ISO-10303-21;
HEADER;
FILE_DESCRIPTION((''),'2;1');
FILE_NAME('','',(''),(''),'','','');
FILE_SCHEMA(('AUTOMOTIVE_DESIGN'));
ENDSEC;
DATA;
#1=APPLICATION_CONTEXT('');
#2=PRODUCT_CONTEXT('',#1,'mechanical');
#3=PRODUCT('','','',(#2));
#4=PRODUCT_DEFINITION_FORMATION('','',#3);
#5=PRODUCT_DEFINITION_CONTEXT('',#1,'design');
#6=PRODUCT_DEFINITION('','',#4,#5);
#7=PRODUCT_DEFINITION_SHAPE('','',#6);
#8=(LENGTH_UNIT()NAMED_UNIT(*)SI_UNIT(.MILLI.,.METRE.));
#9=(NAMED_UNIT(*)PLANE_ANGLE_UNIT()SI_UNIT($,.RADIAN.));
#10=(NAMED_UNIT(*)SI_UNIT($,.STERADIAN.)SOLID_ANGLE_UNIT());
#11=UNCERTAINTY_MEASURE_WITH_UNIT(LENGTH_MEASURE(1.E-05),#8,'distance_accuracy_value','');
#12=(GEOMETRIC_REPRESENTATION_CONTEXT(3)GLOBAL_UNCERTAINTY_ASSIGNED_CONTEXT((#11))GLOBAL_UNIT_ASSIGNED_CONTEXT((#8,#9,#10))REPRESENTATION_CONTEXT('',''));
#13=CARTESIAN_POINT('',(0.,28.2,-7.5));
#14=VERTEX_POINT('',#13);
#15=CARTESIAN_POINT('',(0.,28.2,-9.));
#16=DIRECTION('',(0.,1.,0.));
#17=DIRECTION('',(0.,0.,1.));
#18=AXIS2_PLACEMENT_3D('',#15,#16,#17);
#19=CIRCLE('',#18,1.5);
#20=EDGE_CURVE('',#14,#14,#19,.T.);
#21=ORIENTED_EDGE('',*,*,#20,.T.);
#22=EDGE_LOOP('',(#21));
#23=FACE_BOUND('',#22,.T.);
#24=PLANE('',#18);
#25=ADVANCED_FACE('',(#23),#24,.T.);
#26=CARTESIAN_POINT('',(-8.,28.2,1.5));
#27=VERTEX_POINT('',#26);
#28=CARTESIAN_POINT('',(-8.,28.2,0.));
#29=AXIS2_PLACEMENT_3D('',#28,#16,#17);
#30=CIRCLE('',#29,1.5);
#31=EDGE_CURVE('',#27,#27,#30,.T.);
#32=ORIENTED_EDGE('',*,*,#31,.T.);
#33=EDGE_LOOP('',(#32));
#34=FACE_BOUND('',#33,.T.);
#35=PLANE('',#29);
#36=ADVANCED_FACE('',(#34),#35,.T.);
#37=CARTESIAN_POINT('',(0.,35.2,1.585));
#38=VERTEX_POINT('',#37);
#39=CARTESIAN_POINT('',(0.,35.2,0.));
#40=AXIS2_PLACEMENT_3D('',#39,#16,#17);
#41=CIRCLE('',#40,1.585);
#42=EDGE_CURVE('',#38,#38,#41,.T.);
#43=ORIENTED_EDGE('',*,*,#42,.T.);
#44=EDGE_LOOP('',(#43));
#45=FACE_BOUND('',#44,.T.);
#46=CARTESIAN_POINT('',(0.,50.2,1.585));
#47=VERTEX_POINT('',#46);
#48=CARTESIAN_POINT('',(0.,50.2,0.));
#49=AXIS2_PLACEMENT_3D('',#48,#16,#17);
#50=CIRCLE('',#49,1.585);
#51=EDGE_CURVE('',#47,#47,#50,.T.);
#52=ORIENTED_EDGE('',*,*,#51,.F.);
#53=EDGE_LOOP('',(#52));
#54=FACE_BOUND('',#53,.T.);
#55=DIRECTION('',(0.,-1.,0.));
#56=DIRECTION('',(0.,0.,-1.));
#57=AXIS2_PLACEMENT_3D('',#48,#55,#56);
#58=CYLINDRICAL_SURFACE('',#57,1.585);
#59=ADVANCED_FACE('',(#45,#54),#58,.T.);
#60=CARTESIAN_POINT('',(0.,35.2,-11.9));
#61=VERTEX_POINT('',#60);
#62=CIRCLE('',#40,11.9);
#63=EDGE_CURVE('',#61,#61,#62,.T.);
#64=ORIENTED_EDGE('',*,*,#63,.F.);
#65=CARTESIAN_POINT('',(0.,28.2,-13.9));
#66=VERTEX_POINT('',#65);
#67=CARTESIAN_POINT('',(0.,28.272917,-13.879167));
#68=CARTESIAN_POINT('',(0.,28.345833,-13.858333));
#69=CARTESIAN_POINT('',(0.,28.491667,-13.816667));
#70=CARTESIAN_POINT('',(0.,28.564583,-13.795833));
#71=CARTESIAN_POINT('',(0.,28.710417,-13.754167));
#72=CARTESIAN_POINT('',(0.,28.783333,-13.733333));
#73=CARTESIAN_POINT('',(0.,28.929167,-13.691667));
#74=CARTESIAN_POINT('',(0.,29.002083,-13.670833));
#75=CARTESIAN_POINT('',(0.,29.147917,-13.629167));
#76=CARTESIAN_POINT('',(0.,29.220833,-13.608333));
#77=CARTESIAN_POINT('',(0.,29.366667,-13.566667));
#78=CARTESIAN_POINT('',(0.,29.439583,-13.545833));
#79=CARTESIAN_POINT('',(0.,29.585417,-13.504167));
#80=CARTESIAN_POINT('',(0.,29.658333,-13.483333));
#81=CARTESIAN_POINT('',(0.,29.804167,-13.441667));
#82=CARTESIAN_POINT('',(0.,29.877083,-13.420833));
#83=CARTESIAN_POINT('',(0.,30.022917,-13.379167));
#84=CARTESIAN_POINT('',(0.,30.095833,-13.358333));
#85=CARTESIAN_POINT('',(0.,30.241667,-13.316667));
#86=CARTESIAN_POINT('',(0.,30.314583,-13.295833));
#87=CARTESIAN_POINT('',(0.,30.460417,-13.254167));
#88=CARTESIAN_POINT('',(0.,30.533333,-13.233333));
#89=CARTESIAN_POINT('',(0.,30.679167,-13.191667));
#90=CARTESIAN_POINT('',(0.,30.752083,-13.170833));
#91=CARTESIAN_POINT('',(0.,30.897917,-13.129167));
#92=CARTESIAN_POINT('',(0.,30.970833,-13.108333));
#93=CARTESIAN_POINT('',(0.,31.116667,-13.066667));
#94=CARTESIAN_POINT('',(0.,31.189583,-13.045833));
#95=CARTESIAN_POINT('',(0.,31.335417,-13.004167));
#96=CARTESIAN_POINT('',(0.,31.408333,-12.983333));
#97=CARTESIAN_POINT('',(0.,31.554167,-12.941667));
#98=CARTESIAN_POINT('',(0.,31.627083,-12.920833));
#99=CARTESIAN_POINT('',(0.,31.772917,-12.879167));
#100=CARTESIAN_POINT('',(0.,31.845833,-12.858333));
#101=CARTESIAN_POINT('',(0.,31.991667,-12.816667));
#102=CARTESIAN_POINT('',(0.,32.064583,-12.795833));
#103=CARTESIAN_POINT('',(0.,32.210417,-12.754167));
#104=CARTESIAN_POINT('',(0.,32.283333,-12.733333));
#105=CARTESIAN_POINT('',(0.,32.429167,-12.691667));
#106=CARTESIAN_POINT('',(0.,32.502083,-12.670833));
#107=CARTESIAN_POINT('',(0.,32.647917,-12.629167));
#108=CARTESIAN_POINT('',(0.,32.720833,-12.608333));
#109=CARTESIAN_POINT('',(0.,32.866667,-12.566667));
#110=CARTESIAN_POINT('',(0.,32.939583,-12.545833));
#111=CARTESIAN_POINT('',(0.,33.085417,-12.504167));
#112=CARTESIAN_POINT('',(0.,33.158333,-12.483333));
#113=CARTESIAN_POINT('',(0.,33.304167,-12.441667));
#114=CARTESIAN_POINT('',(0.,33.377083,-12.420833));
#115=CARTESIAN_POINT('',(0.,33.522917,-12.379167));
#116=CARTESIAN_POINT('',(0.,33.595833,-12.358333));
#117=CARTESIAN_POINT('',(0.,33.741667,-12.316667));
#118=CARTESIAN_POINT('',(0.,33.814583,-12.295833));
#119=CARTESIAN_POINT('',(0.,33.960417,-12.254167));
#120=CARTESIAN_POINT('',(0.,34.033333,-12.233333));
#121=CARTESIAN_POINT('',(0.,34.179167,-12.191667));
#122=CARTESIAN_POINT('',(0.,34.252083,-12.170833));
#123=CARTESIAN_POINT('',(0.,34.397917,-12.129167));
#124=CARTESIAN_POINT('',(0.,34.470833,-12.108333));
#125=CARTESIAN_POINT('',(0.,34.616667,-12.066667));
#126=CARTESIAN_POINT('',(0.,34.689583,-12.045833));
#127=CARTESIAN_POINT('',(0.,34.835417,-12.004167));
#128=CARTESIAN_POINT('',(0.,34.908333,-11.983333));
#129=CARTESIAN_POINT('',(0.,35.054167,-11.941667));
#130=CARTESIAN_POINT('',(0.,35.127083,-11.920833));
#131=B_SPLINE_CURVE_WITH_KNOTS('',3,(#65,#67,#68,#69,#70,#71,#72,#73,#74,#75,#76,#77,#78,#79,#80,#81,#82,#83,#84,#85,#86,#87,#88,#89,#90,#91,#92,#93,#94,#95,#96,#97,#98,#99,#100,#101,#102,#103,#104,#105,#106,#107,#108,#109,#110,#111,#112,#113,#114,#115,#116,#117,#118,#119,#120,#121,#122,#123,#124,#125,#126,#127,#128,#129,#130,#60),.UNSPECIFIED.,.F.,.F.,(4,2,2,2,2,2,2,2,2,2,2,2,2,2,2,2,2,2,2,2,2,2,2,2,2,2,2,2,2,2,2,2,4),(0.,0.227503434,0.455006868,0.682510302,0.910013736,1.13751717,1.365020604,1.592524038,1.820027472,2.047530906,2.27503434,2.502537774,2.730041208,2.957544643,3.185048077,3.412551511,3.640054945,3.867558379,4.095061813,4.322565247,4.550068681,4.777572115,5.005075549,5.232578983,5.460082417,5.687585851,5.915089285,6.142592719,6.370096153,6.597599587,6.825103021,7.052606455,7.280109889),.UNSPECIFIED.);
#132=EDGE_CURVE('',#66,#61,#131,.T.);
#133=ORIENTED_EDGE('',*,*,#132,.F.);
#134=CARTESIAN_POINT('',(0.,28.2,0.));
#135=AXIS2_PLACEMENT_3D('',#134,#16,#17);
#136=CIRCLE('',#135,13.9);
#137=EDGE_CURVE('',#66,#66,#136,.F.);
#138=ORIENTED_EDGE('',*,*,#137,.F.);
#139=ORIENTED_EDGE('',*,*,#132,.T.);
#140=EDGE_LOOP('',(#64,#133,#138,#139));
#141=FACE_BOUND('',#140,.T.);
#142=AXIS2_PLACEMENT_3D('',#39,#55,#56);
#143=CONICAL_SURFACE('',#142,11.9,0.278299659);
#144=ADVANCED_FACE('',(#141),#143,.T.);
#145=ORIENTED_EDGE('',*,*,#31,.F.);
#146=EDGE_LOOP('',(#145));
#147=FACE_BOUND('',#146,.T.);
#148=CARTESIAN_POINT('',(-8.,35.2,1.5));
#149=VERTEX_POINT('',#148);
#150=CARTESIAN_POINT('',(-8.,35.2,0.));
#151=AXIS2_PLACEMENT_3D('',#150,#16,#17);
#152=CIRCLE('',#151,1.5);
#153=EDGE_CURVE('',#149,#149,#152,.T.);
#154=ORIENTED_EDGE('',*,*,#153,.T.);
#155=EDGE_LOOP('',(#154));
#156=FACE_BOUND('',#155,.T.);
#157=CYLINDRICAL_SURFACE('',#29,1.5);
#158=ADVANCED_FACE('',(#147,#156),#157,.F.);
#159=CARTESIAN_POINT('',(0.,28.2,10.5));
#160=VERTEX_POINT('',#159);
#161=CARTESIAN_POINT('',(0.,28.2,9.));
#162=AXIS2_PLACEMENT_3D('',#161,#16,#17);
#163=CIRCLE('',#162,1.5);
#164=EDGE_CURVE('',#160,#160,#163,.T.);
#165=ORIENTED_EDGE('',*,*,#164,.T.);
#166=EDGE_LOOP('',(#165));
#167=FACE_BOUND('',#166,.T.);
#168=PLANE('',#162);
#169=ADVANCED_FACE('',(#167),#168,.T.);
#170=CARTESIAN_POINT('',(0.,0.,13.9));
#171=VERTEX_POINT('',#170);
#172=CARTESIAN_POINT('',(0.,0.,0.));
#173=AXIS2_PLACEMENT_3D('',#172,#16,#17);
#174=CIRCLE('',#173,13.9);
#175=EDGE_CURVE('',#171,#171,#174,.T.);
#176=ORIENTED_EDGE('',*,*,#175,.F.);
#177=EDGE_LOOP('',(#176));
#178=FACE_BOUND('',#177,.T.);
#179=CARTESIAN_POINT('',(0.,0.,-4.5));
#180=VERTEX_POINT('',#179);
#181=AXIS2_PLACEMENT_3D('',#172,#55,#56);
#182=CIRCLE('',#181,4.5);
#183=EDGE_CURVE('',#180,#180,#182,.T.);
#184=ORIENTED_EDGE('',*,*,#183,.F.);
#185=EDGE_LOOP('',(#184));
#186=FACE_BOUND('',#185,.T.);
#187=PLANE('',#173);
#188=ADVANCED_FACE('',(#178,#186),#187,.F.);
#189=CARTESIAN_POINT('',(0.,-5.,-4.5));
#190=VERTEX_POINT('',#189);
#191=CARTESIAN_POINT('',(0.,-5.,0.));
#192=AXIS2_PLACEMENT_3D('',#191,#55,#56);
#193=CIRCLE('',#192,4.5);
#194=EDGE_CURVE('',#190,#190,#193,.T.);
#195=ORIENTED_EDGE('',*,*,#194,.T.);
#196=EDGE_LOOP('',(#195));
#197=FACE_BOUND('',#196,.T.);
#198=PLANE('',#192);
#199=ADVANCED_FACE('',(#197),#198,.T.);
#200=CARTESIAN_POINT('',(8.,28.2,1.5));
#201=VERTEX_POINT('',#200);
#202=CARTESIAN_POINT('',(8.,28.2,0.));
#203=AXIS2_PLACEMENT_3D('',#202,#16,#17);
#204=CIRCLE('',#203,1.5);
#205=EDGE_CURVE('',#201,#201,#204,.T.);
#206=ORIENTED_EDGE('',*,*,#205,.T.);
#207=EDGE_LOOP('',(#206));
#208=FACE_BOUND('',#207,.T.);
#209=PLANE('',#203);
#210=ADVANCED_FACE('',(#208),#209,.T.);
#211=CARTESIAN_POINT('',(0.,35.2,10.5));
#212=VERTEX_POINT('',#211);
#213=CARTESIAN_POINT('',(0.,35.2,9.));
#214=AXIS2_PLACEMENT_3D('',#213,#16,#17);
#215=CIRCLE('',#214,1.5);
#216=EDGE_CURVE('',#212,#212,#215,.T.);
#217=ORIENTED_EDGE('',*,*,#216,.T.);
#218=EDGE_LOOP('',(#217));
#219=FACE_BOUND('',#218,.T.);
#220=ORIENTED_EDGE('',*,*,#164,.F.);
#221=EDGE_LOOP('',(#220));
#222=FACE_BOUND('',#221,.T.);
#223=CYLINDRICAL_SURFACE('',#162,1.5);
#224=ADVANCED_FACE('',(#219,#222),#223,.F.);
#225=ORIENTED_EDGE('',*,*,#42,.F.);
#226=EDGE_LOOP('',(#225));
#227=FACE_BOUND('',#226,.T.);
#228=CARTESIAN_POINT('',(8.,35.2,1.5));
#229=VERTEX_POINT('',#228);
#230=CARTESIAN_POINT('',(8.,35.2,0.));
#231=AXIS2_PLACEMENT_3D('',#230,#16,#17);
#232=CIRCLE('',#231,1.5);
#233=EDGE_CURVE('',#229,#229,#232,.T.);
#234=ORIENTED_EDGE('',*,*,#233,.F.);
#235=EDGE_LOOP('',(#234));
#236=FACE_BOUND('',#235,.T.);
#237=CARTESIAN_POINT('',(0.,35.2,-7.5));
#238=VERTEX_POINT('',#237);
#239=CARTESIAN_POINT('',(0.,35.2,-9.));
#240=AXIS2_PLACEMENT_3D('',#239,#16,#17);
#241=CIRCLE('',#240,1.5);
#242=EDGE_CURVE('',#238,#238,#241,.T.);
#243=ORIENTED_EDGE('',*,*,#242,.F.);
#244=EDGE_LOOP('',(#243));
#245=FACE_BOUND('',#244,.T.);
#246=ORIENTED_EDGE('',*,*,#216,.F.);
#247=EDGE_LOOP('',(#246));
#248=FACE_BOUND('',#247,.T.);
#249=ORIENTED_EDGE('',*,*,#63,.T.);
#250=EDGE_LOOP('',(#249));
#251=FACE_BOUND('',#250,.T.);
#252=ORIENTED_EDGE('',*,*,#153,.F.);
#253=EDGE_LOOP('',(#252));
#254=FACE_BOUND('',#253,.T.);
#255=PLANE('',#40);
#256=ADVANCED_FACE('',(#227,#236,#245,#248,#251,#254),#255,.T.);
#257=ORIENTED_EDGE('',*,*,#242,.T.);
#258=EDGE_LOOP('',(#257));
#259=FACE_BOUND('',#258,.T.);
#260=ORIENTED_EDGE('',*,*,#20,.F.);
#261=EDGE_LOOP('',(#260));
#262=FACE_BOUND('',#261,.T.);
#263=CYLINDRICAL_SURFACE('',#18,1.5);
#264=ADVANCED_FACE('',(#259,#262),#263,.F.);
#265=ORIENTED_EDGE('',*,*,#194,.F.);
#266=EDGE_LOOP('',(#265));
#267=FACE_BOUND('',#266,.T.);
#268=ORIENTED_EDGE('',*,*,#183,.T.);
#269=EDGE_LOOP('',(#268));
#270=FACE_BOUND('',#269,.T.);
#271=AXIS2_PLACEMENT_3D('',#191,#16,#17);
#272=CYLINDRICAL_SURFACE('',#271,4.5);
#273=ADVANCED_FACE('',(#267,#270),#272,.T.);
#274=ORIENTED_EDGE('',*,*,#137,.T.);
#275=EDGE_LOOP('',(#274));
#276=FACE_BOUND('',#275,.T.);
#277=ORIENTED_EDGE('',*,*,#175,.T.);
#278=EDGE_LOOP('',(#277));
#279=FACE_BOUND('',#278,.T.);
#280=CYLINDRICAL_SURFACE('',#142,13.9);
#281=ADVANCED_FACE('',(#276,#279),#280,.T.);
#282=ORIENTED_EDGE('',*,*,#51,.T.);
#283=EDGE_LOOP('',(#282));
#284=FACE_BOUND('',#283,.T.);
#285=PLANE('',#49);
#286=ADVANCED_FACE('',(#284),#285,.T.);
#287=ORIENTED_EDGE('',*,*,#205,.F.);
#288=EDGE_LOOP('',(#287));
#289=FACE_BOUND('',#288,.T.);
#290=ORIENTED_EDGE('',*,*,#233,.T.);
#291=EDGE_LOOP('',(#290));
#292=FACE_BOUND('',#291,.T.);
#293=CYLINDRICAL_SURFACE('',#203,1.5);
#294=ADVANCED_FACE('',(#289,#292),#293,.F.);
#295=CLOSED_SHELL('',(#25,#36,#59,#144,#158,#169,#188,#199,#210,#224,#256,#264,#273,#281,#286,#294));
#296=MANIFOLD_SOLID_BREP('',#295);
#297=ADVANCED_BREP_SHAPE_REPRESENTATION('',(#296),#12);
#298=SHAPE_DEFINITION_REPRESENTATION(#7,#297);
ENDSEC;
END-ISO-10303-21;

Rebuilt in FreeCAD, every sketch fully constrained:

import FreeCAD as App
import Part
import Sketcher

V = App.Vector
Q = App.Units.Quantity


def edges_at(feature, points):
    """Names of the edges that pass closest to the given points."""
    edges = feature.Shape.Edges
    near = lambda p: min(range(len(edges)), key=lambda i: edges[i].distToShape(Part.Vertex(*p))[0])
    return sorted({f"Edge{near(p) + 1}" for p in points})

doc = App.newDocument("Part")
params = doc.addObject("Spreadsheet::Sheet", "Params")
for row, (alias, value) in enumerate([
    ("sketch1_diameter", "27.8 mm"),
    ("pad1_length", "35.2 mm"),
    ("sketch2_diameter", "3.17 mm"),
    ("pad2_length", "15 mm"),
    ("sketch3_diameter", "3 mm"),
    ("pocket1_length", "7 mm"),
    ("chamfer_size", "7 mm"),
    ("chamfer_size2", "2 mm"),
    ("sketch4_diameter", "9 mm"),
    ("pad3_length", "5 mm"),
], start=1):
    params.set(f"A{row}", alias)
    params.set(f"B{row}", "=" + value)
    params.setAlias(f"B{row}", alias)

body = doc.addObject("PartDesign::Body", "Body")

sketch1 = body.newObject("Sketcher::SketchObject", "Sketch")
sketch1.AttachmentSupport = (doc.getObject("XZ_Plane"), [""])
sketch1.MapMode = "FlatFace"
sketch1.addGeometry(Part.Circle(V(0, 0, 0), V(0, 0, 1), 14), False)
sketch1.addConstraint([
    Sketcher.Constraint("Coincident", 0, 3, -1, 1),
    Sketcher.Constraint("Diameter", 0, Q("27.8 mm")),
])
sketch1.setExpression("Constraints[1]", "Params.sketch1_diameter")
pad1 = body.newObject("PartDesign::Pad", "Pad")
pad1.Profile = sketch1
pad1.setExpression("Length", "Params.pad1_length")
pad1.Reversed = True

sketch2 = body.newObject("Sketcher::SketchObject", "Sketch001")
sketch2.AttachmentSupport = (doc.getObject("XZ_Plane"), [""])
sketch2.MapMode = "FlatFace"
sketch2.AttachmentOffset = App.Placement(V(0, 0, -35.2), App.Rotation())
sketch2.addGeometry(Part.Circle(V(0, 0, 0), V(0, 0, 1), 1.6), False)
sketch2.addConstraint([
    Sketcher.Constraint("Coincident", 0, 3, -1, 1),
    Sketcher.Constraint("Diameter", 0, Q("3.17 mm")),
])
sketch2.setExpression("Constraints[1]", "Params.sketch2_diameter")
pad2 = body.newObject("PartDesign::Pad", "Pad001")
pad2.Profile = sketch2
pad2.setExpression("Length", "Params.pad2_length")
pad2.Reversed = True

sketch3 = body.newObject("Sketcher::SketchObject", "Sketch002")
sketch3.AttachmentSupport = (doc.getObject("XZ_Plane"), [""])
sketch3.MapMode = "FlatFace"
sketch3.AttachmentOffset = App.Placement(V(0, 0, -35.2), App.Rotation())
sketch3.addGeometry([
    Part.Circle(V(0, -9, 0), V(0, 0, 1), 1.5),
    Part.Circle(V(-8, 0, 0), V(0, 0, 1), 1.5),
    Part.Circle(V(8, 0, 0), V(0, 0, 1), 1.5),
    Part.Circle(V(0, 9, 0), V(0, 0, 1), 1.5),
], False)
sketch3.addConstraint([
    Sketcher.Constraint("Equal", 0, 1),
    Sketcher.Constraint("Equal", 1, 2),
    Sketcher.Constraint("Equal", 2, 3),
    Sketcher.Constraint("Symmetric", 1, 3, 2, 3, -1, 1),
    Sketcher.Constraint("Symmetric", 0, 3, 3, 3, -1, 1),
    Sketcher.Constraint("PointOnObject", 0, 3, -2),
    Sketcher.Constraint("PointOnObject", 1, 3, -1),
    Sketcher.Constraint("Diameter", 0, Q("3 mm")),
    Sketcher.Constraint("DistanceY", 0, 3, -1, 1, Q("9 mm")),
    Sketcher.Constraint("DistanceX", 1, 3, -1, 1, Q("8 mm")),
])
sketch3.setExpression("Constraints[7]", "Params.sketch3_diameter")
pocket1 = body.newObject("PartDesign::Pocket", "Pocket")
pocket1.Profile = sketch3
pocket1.setExpression("Length", "Params.pocket1_length")
pocket1.Reversed = True
doc.recompute()

chamfer = body.newObject("PartDesign::Chamfer", "Chamfer")
chamfer.Base = (pocket1, edges_at(pocket1, [(0, 35.2, -13.9)]))
chamfer.ChamferType = "Two distances"
chamfer.setExpression("Size", "Params.chamfer_size")
chamfer.setExpression("Size2", "Params.chamfer_size2")

sketch4 = body.newObject("Sketcher::SketchObject", "Sketch003")
sketch4.AttachmentSupport = (doc.getObject("XZ_Plane"), [""])
sketch4.MapMode = "FlatFace"
sketch4.addGeometry(Part.Circle(V(0, 0, 0), V(0, 0, 1), 4.5), False)
sketch4.addConstraint([
    Sketcher.Constraint("Coincident", 0, 3, -1, 1),
    Sketcher.Constraint("Diameter", 0, Q("9 mm")),
])
sketch4.setExpression("Constraints[1]", "Params.sketch4_diameter")
pad3 = body.newObject("PartDesign::Pad", "Pad002")
pad3.Profile = sketch4
pad3.setExpression("Length", "Params.pad3_length")

doc.recompute()
